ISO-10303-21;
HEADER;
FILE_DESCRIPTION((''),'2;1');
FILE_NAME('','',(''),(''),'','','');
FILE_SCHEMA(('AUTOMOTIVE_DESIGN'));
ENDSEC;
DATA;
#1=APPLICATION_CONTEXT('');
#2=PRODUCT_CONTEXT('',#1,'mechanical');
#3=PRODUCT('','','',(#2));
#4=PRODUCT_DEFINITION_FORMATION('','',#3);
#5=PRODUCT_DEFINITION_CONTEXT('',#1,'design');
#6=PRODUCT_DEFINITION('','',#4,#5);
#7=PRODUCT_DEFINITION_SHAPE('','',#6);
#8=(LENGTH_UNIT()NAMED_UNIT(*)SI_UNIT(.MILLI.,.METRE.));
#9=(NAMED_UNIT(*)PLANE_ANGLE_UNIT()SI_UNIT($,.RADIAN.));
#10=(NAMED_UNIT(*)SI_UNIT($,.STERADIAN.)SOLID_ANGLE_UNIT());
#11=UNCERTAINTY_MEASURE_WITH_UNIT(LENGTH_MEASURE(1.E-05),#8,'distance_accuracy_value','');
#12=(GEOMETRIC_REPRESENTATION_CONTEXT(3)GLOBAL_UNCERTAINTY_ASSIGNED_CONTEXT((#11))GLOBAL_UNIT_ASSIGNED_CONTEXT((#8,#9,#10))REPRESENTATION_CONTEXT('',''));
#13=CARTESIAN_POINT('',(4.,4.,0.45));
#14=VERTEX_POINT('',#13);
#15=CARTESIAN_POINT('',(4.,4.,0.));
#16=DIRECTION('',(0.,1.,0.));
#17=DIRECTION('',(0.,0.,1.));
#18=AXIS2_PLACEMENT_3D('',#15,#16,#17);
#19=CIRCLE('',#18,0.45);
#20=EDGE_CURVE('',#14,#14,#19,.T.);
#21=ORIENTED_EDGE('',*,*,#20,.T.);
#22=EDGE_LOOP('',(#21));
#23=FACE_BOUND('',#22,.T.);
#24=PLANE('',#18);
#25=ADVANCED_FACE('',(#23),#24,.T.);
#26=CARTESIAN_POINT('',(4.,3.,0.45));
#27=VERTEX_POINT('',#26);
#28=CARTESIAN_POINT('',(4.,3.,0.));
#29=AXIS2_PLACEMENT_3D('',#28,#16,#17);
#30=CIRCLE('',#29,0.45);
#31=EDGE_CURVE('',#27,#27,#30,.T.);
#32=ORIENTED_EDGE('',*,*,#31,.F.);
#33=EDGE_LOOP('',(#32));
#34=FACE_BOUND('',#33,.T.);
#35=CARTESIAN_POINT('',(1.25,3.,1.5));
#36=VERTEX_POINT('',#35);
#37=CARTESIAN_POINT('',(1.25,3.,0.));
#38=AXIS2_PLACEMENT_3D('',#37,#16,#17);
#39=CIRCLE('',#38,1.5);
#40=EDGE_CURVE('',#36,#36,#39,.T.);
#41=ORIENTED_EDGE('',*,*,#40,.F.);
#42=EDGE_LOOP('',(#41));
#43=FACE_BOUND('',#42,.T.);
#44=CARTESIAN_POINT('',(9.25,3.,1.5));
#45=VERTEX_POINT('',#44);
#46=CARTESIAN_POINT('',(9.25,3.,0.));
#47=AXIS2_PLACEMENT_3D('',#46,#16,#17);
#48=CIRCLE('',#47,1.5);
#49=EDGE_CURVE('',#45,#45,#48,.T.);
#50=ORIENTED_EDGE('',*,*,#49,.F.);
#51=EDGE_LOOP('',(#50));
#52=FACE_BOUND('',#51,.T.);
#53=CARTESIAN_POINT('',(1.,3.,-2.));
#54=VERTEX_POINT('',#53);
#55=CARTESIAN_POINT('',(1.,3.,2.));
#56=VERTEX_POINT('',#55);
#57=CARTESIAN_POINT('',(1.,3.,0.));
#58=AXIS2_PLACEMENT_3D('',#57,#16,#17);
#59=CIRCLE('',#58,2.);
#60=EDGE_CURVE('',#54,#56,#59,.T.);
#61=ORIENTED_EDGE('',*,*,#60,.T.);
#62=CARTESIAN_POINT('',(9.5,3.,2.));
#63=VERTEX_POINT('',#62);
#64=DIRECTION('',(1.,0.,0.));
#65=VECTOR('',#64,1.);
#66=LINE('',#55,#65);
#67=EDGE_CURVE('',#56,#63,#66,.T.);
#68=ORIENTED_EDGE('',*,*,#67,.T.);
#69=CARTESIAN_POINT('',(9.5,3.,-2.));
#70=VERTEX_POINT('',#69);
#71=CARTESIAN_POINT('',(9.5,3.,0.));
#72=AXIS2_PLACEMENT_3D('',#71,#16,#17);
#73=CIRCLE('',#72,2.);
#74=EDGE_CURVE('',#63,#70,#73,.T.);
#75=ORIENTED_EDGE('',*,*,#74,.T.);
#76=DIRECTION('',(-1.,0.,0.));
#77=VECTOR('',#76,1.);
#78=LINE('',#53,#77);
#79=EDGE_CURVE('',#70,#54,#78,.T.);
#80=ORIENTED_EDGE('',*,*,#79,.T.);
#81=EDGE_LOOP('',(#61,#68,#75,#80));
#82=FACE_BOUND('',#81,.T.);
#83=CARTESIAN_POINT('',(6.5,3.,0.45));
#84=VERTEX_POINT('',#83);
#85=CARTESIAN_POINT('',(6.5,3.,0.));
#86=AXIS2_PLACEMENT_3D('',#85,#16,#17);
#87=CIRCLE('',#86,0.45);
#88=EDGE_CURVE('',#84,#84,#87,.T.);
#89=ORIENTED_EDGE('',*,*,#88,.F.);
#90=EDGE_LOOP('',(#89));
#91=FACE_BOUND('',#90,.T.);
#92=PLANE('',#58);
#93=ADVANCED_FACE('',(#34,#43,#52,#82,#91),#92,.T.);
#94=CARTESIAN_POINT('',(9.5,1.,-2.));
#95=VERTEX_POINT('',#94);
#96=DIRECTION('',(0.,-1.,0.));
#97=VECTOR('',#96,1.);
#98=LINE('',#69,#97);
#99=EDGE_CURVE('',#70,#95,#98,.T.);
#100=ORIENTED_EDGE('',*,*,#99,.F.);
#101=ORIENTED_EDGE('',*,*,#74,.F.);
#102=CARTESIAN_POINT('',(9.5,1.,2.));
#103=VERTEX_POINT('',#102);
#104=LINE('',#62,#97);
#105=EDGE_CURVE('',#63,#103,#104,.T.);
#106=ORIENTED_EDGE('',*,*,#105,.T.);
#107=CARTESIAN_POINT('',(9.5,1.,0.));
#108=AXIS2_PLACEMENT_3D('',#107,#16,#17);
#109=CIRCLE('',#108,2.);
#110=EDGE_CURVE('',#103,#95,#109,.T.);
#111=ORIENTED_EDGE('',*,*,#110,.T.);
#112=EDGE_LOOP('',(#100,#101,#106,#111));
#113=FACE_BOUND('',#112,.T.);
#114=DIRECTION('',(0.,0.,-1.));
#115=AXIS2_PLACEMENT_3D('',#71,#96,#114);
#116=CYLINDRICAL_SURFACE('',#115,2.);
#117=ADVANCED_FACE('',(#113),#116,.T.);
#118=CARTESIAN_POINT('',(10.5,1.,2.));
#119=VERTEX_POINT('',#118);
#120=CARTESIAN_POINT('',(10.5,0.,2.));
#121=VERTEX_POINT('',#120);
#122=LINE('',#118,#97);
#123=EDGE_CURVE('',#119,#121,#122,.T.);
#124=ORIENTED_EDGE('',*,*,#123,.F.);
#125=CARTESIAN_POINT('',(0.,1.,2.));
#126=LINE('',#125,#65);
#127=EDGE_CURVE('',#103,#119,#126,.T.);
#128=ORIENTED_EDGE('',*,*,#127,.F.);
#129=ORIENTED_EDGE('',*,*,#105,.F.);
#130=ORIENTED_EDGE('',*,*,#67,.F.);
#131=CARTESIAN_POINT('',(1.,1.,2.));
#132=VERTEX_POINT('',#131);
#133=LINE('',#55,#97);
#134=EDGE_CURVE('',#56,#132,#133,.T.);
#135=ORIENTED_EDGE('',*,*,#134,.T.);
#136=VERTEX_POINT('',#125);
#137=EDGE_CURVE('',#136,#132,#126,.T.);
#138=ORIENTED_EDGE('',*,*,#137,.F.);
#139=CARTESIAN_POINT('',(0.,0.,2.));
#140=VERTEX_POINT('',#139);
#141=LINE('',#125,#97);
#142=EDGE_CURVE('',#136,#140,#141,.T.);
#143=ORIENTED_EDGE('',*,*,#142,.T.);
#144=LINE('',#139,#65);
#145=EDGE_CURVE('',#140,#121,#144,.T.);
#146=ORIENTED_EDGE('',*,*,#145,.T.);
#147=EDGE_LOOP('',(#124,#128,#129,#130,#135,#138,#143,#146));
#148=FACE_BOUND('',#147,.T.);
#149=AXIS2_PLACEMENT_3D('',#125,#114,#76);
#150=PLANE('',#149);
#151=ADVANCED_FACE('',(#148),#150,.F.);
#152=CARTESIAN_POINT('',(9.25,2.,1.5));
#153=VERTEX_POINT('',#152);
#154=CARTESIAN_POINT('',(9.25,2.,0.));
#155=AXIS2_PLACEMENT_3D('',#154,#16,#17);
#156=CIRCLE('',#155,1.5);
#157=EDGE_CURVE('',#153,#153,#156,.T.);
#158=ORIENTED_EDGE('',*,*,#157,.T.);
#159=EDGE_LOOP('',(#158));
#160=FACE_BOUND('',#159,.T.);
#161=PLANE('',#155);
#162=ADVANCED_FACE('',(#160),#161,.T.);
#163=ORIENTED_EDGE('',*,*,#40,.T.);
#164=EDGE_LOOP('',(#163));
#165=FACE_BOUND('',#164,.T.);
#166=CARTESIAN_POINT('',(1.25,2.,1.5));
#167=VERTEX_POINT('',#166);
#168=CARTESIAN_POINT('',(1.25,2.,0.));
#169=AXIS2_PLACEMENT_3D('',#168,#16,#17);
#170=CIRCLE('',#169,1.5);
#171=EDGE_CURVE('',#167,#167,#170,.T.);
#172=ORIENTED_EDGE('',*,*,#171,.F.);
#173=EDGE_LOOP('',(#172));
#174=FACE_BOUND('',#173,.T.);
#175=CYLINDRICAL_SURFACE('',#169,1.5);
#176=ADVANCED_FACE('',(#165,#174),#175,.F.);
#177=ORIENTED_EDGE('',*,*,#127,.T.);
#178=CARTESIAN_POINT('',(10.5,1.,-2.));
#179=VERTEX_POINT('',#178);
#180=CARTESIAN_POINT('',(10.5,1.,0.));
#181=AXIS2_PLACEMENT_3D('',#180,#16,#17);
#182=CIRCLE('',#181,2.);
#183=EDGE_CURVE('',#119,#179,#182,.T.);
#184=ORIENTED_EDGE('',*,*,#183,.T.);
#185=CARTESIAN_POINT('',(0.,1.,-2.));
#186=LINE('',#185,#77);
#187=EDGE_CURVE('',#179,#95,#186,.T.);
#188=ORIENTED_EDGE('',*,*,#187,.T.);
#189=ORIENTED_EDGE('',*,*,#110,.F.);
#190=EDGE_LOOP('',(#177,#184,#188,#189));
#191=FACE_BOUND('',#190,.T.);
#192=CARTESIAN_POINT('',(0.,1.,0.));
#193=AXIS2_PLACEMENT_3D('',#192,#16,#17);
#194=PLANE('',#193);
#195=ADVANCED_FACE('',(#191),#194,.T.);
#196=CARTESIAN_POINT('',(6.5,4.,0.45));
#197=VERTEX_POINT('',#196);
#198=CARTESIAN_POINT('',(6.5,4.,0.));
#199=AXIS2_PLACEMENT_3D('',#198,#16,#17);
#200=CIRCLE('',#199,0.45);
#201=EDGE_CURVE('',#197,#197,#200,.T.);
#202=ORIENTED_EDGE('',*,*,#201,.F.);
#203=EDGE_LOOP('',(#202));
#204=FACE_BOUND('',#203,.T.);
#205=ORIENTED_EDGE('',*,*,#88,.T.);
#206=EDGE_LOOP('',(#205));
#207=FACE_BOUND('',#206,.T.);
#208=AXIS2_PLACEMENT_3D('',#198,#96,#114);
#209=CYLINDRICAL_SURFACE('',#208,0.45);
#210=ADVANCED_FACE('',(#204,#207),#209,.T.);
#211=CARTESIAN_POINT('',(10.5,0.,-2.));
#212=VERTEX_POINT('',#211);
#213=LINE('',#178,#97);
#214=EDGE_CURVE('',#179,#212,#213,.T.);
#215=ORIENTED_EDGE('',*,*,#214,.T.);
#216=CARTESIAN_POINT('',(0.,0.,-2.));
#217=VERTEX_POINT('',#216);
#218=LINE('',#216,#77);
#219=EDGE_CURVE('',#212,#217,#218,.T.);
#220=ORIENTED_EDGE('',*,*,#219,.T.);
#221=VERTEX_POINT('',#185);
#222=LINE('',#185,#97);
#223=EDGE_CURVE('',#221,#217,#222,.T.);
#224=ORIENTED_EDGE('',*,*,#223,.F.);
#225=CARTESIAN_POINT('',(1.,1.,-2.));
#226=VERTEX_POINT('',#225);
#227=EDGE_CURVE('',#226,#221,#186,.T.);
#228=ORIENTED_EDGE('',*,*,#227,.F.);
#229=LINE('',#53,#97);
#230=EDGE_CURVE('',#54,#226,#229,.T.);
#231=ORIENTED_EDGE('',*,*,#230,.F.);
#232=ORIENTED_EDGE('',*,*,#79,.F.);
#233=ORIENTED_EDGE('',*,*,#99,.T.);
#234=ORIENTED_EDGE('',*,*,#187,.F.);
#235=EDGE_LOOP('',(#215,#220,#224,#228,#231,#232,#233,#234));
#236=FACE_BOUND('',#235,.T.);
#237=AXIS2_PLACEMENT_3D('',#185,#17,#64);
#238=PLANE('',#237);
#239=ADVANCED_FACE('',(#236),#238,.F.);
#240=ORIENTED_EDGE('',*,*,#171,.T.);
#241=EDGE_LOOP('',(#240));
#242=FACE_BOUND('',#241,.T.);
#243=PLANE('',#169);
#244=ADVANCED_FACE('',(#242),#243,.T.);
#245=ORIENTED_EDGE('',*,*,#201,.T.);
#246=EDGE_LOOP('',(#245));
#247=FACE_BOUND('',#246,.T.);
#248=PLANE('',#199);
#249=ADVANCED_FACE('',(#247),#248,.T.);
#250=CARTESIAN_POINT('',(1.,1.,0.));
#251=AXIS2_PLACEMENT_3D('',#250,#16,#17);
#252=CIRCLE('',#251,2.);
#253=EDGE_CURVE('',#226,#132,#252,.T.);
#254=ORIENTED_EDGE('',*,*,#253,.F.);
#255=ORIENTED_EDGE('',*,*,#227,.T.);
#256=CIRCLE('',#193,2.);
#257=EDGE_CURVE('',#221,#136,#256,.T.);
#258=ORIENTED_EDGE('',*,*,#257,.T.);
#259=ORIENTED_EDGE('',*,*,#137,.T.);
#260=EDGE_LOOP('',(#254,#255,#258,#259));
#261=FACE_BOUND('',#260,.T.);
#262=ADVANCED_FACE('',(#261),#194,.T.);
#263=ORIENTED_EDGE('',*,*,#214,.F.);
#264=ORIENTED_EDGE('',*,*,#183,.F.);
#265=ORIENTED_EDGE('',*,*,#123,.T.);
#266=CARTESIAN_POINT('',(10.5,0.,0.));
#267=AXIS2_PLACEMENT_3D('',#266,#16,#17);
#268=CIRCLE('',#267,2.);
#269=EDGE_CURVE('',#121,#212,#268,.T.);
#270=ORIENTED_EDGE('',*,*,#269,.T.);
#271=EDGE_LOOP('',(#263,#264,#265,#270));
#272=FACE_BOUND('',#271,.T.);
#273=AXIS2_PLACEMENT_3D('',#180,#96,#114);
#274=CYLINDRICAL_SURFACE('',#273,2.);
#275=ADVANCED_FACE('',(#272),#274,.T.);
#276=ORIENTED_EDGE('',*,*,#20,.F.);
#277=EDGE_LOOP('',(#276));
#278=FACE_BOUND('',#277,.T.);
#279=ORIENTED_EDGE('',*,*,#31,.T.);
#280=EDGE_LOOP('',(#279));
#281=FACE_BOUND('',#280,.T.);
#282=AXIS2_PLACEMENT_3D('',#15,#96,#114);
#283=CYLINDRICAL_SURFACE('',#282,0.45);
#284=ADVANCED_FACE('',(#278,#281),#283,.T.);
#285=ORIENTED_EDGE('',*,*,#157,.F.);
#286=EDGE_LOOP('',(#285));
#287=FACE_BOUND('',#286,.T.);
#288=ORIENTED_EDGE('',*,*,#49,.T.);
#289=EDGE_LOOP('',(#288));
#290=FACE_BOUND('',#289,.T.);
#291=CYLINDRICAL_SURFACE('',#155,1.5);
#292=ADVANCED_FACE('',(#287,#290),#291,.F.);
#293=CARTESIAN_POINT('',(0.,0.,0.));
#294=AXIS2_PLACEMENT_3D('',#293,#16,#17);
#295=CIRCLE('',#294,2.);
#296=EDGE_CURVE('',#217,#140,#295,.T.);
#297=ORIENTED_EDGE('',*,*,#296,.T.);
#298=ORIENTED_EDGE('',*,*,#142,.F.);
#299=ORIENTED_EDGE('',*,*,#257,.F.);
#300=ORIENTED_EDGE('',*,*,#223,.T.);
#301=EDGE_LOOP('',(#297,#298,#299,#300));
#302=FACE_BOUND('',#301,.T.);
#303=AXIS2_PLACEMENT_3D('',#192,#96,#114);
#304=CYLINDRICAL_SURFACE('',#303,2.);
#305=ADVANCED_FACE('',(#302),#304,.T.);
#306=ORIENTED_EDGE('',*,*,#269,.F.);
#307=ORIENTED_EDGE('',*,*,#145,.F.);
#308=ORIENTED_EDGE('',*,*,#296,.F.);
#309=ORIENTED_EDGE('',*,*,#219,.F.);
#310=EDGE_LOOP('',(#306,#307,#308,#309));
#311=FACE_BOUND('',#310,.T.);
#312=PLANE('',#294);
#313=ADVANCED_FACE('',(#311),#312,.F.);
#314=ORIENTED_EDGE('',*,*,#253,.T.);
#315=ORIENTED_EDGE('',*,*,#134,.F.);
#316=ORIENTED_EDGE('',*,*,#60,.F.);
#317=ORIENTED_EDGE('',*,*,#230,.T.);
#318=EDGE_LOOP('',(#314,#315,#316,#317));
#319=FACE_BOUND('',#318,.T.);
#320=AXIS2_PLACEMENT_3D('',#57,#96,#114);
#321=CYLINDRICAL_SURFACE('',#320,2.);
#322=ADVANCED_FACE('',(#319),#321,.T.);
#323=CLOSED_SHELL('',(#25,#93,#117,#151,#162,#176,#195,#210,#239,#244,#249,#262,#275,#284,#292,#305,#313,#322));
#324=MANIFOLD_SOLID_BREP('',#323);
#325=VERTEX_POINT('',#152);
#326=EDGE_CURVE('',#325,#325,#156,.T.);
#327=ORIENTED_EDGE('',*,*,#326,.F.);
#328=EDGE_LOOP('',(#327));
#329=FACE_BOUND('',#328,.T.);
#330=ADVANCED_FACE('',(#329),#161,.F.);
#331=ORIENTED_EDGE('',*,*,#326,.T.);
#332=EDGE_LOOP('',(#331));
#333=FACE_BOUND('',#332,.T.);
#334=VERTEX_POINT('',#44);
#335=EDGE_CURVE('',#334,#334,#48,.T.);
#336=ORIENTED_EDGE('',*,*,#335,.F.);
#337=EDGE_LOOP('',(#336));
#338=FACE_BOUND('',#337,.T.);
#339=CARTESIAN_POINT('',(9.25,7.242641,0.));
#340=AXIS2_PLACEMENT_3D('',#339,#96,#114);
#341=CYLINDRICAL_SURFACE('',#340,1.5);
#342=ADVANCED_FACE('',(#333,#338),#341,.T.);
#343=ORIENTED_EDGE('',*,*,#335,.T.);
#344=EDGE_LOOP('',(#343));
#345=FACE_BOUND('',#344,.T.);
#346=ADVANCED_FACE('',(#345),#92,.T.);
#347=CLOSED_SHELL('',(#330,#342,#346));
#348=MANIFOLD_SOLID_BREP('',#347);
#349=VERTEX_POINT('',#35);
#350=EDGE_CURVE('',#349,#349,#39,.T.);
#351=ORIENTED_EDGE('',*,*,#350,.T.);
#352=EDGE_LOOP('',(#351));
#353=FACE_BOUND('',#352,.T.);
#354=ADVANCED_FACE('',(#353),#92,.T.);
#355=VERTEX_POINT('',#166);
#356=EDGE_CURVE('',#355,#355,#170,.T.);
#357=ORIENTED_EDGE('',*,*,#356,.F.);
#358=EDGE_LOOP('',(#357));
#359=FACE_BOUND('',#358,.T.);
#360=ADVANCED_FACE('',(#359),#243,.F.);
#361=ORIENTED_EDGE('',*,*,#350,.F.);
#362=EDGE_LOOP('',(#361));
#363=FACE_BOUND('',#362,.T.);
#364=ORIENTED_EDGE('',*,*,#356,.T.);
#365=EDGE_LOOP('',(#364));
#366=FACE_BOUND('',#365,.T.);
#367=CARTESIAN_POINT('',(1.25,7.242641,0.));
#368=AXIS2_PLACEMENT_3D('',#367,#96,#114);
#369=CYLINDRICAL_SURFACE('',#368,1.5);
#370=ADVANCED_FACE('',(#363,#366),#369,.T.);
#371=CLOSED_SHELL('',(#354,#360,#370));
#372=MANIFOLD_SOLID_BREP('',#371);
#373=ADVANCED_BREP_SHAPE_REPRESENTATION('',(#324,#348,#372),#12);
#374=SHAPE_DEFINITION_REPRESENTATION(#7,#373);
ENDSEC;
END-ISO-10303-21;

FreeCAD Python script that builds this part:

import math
import FreeCAD as App
import Part
import Sketcher
from FreeCAD import Vector
Q = App.Units.Quantity

doc = App.newDocument("Part")
body = doc.addObject("PartDesign::Body", "Body")

# Sketch on XZ plane
sketch1 = doc.addObject("Sketcher::SketchObject", "Sketch")
body.addObject(sketch1)
sketch1.AttachmentSupport = (doc.XZ_Plane, [""])
sketch1.MapMode = "FlatFace"
sketch1.addGeometry(Part.LineSegment(Vector(10.5, -2, 0), Vector(0, -2, 0)), False)
sketch1.addGeometry(Part.ArcOfCircle(Part.Circle(Vector(0, 0, 0), Vector(0, 0, 1), 2), math.radians(90), math.radians(270)), False)
sketch1.addGeometry(Part.LineSegment(Vector(0, 2, 0), Vector(10.5, 2, 0)), False)
sketch1.addGeometry(Part.ArcOfCircle(Part.Circle(Vector(10.5, 0, 0), Vector(0, 0, 1), 2), math.radians(-90), math.radians(90)), False)
sketch1.addConstraint(Sketcher.Constraint("Tangent", 0, 2, 1, 2))
sketch1.addConstraint(Sketcher.Constraint("Tangent", 1, 1, 2, 1))
sketch1.addConstraint(Sketcher.Constraint("Tangent", 2, 2, 3, 2))
sketch1.addConstraint(Sketcher.Constraint("Tangent", 3, 1, 0, 1))
sketch1.addConstraint(Sketcher.Constraint("Horizontal", 0))
sketch1.addConstraint(Sketcher.Constraint("Horizontal", 2))
sketch1.addConstraint(Sketcher.Constraint("Coincident", 1, 3, -1, 1))
sketch1.addConstraint(Sketcher.Constraint("Radius", 1, Q("2 mm")))
sketch1.addConstraint(Sketcher.Constraint("DistanceX", 0, 2, 0, 1, Q("10.5 mm")))
pad1 = doc.addObject("PartDesign::Pad", "Pad")
body.addObject(pad1)
pad1.Profile = sketch1
pad1.Length = 1
pad1.Reversed = True

# Sketch on XZ plane
sketch2 = doc.addObject("Sketcher::SketchObject", "Sketch001")
body.addObject(sketch2)
sketch2.AttachmentSupport = (doc.XZ_Plane, [""])
sketch2.MapMode = "FlatFace"
sketch2.AttachmentOffset = App.Placement(Vector(0, 0, -1), App.Rotation())
sketch2.addGeometry(Part.LineSegment(Vector(9.5, -2, 0), Vector(1, -2, 0)), False)
sketch2.addGeometry(Part.ArcOfCircle(Part.Circle(Vector(1, 0, 0), Vector(0, 0, 1), 2), math.radians(90), math.radians(270)), False)
sketch2.addGeometry(Part.LineSegment(Vector(1, 2, 0), Vector(9.5, 2, 0)), False)
sketch2.addGeometry(Part.ArcOfCircle(Part.Circle(Vector(9.5, 0, 0), Vector(0, 0, 1), 2), math.radians(-90), math.radians(90)), False)
sketch2.addConstraint(Sketcher.Constraint("Tangent", 0, 2, 1, 2))
sketch2.addConstraint(Sketcher.Constraint("Tangent", 1, 1, 2, 1))
sketch2.addConstraint(Sketcher.Constraint("Tangent", 2, 2, 3, 2))
sketch2.addConstraint(Sketcher.Constraint("Tangent", 3, 1, 0, 1))
sketch2.addConstraint(Sketcher.Constraint("Horizontal", 0))
sketch2.addConstraint(Sketcher.Constraint("Horizontal", 2))
sketch2.addConstraint(Sketcher.Constraint("PointOnObject", 1, 3, -1))
sketch2.addConstraint(Sketcher.Constraint("Radius", 1, Q("2 mm")))
sketch2.addConstraint(Sketcher.Constraint("DistanceX", 0, 2, 0, 1, Q("8.5 mm")))
sketch2.addConstraint(Sketcher.Constraint("DistanceX", -1, 1, 1, 3, Q("1 mm")))
pad2 = doc.addObject("PartDesign::Pad", "Pad001")
body.addObject(pad2)
pad2.Profile = sketch2
pad2.Length = 2
pad2.Reversed = True

# Sketch on XZ plane
sketch3 = doc.addObject("Sketcher::SketchObject", "Sketch002")
body.addObject(sketch3)
sketch3.AttachmentSupport = (doc.XZ_Plane, [""])
sketch3.MapMode = "FlatFace"
sketch3.AttachmentOffset = App.Placement(Vector(0, 0, -3), App.Rotation())
sketch3.addGeometry(Part.Circle(Vector(1.25, 0, 0), Vector(0, 0, 1), 1.5), False)
sketch3.addGeometry(Part.Circle(Vector(9.25, 0, 0), Vector(0, 0, 1), 1.5), False)
sketch3.addGeometry(Part.Circle(Vector(4, 0, 0), Vector(0, 0, 1), 0.45), False)
sketch3.addGeometry(Part.Circle(Vector(6.5, 0, 0), Vector(0, 0, 1), 0.45), False)
sketch3.addConstraint(Sketcher.Constraint("Equal", 0, 1))
sketch3.addConstraint(Sketcher.Constraint("Equal", 2, 3))
sketch3.addConstraint(Sketcher.Constraint("PointOnObject", 0, 3, -1))
sketch3.addConstraint(Sketcher.Constraint("PointOnObject", 1, 3, -1))
sketch3.addConstraint(Sketcher.Constraint("PointOnObject", 2, 3, -1))
sketch3.addConstraint(Sketcher.Constraint("PointOnObject", 3, 3, -1))
sketch3.addConstraint(Sketcher.Constraint("Diameter", 0, Q("3 mm")))
sketch3.addConstraint(Sketcher.Constraint("Diameter", 2, Q("0.9 mm")))
sketch3.addConstraint(Sketcher.Constraint("DistanceX", -1, 1, 2, 3, Q("4 mm")))
sketch3.addConstraint(Sketcher.Constraint("DistanceX", 0, 3, 1, 3, Q("8 mm")))
sketch3.addConstraint(Sketcher.Constraint("DistanceX", -1, 1, 3, 3, Q("6.5 mm")))
sketch3.addConstraint(Sketcher.Constraint("DistanceX", -1, 1, 0, 3, Q("1.25 mm")))
pocket1 = doc.addObject("PartDesign::Pocket", "Pocket")
body.addObject(pocket1)
pocket1.Profile = sketch3
pocket1.Length = 1
pocket1.Reversed = True

# Sketch on XZ plane
sketch4 = doc.addObject("Sketcher::SketchObject", "Sketch003")
body.addObject(sketch4)
sketch4.AttachmentSupport = (doc.XZ_Plane, [""])
sketch4.MapMode = "FlatFace"
sketch4.AttachmentOffset = App.Placement(Vector(0, 0, -4), App.Rotation())
sketch4.addGeometry(Part.Circle(Vector(4, 0, 0), Vector(0, 0, 1), 0.45), False)
sketch4.addGeometry(Part.Circle(Vector(6.5, 0, 0), Vector(0, 0, 1), 0.45), False)
sketch4.addConstraint(Sketcher.Constraint("Equal", 0, 1))
sketch4.addConstraint(Sketcher.Constraint("PointOnObject", 0, 3, -1))
sketch4.addConstraint(Sketcher.Constraint("PointOnObject", 1, 3, -1))
sketch4.addConstraint(Sketcher.Constraint("Diameter", 0, Q("0.9 mm")))
sketch4.addConstraint(Sketcher.Constraint("DistanceX", -1, 1, 0, 3, Q("4 mm")))
sketch4.addConstraint(Sketcher.Constraint("DistanceX", -1, 1, 1, 3, Q("6.5 mm")))
pad3 = doc.addObject("PartDesign::Pad", "Pad002")
body.addObject(pad3)
pad3.Profile = sketch4
pad3.Length = 2
body2 = doc.addObject("PartDesign::Body", "Body001")

# Sketch on XZ plane
sketch5 = doc.addObject("Sketcher::SketchObject", "Sketch004")
body2.addObject(sketch5)
sketch5.AttachmentSupport = (doc.getObject("XZ_Plane001"), [""])
sketch5.MapMode = "FlatFace"
sketch5.AttachmentOffset = App.Placement(Vector(0, 0, -2), App.Rotation())
sketch5.addGeometry(Part.Circle(Vector(1.25, 0, 0), Vector(0, 0, 1), 1.5), False)
sketch5.addConstraint(Sketcher.Constraint("PointOnObject", 0, 3, -1))
sketch5.addConstraint(Sketcher.Constraint("Diameter", 0, Q("3 mm")))
sketch5.addConstraint(Sketcher.Constraint("DistanceX", -1, 1, 0, 3, Q("1.25 mm")))
pad4 = doc.addObject("PartDesign::Pad", "Pad003")
body2.addObject(pad4)
pad4.Profile = sketch5
pad4.Length = 1
pad4.Reversed = True
body3 = doc.addObject("PartDesign::Body", "Body002")

# Sketch on XZ plane
sketch6 = doc.addObject("Sketcher::SketchObject", "Sketch005")
body3.addObject(sketch6)
sketch6.AttachmentSupport = (doc.getObject("XZ_Plane002"), [""])
sketch6.MapMode = "FlatFace"
sketch6.AttachmentOffset = App.Placement(Vector(0, 0, -2), App.Rotation())
sketch6.addGeometry(Part.Circle(Vector(9.25, 0, 0), Vector(0, 0, 1), 1.5), False)
sketch6.addConstraint(Sketcher.Constraint("PointOnObject", 0, 3, -1))
sketch6.addConstraint(Sketcher.Constraint("Diameter", 0, Q("3 mm")))
sketch6.addConstraint(Sketcher.Constraint("DistanceX", -1, 1, 0, 3, Q("9.25 mm")))
pad5 = doc.addObject("PartDesign::Pad", "Pad004")
body3.addObject(pad5)
pad5.Profile = sketch6
pad5.Length = 1
pad5.Reversed = True

doc.recompute()
